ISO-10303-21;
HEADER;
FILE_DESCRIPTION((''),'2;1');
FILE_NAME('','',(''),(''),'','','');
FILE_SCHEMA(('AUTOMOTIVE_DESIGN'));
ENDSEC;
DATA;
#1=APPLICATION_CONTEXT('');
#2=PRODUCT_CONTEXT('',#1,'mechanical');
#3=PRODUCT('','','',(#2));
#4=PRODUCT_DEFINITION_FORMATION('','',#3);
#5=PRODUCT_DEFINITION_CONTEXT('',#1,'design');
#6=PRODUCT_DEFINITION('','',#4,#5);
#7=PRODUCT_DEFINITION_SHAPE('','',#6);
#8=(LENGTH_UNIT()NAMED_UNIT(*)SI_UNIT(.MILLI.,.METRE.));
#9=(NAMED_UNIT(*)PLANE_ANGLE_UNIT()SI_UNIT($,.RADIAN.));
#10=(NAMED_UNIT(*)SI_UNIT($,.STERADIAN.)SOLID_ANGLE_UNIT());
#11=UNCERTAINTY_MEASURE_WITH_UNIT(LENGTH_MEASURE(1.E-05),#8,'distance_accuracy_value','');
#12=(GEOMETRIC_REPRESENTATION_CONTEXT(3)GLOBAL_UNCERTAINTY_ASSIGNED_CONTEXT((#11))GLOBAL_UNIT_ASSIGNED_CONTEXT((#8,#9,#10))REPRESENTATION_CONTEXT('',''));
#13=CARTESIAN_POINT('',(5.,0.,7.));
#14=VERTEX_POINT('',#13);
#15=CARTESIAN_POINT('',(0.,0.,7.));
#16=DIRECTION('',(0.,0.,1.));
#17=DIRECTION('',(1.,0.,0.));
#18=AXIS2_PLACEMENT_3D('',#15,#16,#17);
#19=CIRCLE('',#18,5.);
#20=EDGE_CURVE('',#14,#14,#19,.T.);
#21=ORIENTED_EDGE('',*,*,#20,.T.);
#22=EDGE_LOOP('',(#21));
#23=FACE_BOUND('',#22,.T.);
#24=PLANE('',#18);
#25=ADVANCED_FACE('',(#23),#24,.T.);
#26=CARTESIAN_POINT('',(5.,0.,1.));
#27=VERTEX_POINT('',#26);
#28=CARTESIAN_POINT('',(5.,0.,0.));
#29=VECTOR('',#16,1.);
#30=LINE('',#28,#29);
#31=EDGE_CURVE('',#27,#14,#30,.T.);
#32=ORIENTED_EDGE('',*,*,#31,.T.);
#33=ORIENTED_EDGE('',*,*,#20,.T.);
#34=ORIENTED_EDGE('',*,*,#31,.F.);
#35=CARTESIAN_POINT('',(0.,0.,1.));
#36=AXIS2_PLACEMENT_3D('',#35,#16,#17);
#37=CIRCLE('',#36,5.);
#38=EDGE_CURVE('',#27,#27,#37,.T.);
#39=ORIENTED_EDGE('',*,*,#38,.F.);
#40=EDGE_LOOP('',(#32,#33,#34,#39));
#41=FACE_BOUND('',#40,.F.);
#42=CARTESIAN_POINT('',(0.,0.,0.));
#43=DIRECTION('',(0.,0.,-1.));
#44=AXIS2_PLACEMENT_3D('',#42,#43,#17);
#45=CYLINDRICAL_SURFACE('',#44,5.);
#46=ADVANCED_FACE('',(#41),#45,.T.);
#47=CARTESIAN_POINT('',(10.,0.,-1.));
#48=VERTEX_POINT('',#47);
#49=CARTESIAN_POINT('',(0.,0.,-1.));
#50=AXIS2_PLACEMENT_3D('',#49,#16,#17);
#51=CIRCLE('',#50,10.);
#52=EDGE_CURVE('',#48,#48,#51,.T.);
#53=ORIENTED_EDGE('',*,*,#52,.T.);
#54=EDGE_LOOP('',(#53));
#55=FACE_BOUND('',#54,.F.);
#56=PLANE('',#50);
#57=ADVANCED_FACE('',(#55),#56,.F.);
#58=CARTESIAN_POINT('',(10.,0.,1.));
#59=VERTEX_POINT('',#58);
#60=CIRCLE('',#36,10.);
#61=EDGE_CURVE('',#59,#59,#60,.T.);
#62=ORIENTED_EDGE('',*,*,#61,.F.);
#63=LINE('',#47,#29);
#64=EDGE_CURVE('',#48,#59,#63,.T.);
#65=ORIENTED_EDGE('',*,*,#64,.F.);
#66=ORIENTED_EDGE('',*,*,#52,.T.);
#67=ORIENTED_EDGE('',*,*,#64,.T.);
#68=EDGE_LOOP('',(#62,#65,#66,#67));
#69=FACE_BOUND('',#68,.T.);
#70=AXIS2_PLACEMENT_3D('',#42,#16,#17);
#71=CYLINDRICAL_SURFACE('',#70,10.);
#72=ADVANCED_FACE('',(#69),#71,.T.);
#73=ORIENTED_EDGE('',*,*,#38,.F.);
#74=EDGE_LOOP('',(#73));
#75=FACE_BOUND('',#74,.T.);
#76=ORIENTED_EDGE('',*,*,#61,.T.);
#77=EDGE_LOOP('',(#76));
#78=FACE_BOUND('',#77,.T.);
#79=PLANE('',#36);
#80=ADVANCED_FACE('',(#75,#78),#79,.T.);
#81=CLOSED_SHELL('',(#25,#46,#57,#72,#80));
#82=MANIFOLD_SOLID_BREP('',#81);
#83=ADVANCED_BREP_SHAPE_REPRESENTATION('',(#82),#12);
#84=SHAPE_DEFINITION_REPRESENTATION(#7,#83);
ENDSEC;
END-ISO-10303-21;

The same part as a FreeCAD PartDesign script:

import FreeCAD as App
import Part
import Sketcher
from FreeCAD import Vector
Q = App.Units.Quantity

doc = App.newDocument("Part")
body = doc.addObject("PartDesign::Body", "Body")

sketch1 = body.newObject("Sketcher::SketchObject", "Sketch")
sketch1.AttachmentSupport = (doc.getObject("XY_Plane"), [""])
sketch1.MapMode = "FlatFace"
sketch1.addGeometry(Part.Circle(Vector(0, 0, 0), Vector(0, 0, 1), 10), False)
sketch1.addGeometry(Part.Circle(Vector(0, 0, 0), Vector(0, 0, 1), 5), False)
sketch1.addConstraint(Sketcher.Constraint("Coincident", 0, 3, -1, 1))
sketch1.addConstraint(Sketcher.Constraint("Coincident", 1, 3, -1, 1))
sketch1.addConstraint(Sketcher.Constraint("Diameter", 0, Q("20 mm")))
sketch1.addConstraint(Sketcher.Constraint("Diameter", 1, Q("10 mm")))
pad1 = body.newObject("PartDesign::Pad", "Pad")
pad1.Profile = sketch1
pad1.Type = "TwoLengths"
pad1.Length = 1
pad1.Length2 = 1

sketch2 = body.newObject("Sketcher::SketchObject", "Sketch001")
sketch2.AttachmentSupport = (doc.getObject("XY_Plane"), [""])
sketch2.MapMode = "FlatFace"
sketch2.addGeometry(Part.Circle(Vector(0, 0, 0), Vector(0, 0, 1), 5), False)
sketch2.addConstraint(Sketcher.Constraint("Coincident", 0, 3, -1, 1))
sketch2.addConstraint(Sketcher.Constraint("Diameter", 0, Q("10 mm")))
pad2 = body.newObject("PartDesign::Pad", "Pad001")
pad2.Profile = sketch2
pad2.Type = "TwoLengths"
pad2.Length = 7
pad2.Length2 = 1

doc.recompute()
